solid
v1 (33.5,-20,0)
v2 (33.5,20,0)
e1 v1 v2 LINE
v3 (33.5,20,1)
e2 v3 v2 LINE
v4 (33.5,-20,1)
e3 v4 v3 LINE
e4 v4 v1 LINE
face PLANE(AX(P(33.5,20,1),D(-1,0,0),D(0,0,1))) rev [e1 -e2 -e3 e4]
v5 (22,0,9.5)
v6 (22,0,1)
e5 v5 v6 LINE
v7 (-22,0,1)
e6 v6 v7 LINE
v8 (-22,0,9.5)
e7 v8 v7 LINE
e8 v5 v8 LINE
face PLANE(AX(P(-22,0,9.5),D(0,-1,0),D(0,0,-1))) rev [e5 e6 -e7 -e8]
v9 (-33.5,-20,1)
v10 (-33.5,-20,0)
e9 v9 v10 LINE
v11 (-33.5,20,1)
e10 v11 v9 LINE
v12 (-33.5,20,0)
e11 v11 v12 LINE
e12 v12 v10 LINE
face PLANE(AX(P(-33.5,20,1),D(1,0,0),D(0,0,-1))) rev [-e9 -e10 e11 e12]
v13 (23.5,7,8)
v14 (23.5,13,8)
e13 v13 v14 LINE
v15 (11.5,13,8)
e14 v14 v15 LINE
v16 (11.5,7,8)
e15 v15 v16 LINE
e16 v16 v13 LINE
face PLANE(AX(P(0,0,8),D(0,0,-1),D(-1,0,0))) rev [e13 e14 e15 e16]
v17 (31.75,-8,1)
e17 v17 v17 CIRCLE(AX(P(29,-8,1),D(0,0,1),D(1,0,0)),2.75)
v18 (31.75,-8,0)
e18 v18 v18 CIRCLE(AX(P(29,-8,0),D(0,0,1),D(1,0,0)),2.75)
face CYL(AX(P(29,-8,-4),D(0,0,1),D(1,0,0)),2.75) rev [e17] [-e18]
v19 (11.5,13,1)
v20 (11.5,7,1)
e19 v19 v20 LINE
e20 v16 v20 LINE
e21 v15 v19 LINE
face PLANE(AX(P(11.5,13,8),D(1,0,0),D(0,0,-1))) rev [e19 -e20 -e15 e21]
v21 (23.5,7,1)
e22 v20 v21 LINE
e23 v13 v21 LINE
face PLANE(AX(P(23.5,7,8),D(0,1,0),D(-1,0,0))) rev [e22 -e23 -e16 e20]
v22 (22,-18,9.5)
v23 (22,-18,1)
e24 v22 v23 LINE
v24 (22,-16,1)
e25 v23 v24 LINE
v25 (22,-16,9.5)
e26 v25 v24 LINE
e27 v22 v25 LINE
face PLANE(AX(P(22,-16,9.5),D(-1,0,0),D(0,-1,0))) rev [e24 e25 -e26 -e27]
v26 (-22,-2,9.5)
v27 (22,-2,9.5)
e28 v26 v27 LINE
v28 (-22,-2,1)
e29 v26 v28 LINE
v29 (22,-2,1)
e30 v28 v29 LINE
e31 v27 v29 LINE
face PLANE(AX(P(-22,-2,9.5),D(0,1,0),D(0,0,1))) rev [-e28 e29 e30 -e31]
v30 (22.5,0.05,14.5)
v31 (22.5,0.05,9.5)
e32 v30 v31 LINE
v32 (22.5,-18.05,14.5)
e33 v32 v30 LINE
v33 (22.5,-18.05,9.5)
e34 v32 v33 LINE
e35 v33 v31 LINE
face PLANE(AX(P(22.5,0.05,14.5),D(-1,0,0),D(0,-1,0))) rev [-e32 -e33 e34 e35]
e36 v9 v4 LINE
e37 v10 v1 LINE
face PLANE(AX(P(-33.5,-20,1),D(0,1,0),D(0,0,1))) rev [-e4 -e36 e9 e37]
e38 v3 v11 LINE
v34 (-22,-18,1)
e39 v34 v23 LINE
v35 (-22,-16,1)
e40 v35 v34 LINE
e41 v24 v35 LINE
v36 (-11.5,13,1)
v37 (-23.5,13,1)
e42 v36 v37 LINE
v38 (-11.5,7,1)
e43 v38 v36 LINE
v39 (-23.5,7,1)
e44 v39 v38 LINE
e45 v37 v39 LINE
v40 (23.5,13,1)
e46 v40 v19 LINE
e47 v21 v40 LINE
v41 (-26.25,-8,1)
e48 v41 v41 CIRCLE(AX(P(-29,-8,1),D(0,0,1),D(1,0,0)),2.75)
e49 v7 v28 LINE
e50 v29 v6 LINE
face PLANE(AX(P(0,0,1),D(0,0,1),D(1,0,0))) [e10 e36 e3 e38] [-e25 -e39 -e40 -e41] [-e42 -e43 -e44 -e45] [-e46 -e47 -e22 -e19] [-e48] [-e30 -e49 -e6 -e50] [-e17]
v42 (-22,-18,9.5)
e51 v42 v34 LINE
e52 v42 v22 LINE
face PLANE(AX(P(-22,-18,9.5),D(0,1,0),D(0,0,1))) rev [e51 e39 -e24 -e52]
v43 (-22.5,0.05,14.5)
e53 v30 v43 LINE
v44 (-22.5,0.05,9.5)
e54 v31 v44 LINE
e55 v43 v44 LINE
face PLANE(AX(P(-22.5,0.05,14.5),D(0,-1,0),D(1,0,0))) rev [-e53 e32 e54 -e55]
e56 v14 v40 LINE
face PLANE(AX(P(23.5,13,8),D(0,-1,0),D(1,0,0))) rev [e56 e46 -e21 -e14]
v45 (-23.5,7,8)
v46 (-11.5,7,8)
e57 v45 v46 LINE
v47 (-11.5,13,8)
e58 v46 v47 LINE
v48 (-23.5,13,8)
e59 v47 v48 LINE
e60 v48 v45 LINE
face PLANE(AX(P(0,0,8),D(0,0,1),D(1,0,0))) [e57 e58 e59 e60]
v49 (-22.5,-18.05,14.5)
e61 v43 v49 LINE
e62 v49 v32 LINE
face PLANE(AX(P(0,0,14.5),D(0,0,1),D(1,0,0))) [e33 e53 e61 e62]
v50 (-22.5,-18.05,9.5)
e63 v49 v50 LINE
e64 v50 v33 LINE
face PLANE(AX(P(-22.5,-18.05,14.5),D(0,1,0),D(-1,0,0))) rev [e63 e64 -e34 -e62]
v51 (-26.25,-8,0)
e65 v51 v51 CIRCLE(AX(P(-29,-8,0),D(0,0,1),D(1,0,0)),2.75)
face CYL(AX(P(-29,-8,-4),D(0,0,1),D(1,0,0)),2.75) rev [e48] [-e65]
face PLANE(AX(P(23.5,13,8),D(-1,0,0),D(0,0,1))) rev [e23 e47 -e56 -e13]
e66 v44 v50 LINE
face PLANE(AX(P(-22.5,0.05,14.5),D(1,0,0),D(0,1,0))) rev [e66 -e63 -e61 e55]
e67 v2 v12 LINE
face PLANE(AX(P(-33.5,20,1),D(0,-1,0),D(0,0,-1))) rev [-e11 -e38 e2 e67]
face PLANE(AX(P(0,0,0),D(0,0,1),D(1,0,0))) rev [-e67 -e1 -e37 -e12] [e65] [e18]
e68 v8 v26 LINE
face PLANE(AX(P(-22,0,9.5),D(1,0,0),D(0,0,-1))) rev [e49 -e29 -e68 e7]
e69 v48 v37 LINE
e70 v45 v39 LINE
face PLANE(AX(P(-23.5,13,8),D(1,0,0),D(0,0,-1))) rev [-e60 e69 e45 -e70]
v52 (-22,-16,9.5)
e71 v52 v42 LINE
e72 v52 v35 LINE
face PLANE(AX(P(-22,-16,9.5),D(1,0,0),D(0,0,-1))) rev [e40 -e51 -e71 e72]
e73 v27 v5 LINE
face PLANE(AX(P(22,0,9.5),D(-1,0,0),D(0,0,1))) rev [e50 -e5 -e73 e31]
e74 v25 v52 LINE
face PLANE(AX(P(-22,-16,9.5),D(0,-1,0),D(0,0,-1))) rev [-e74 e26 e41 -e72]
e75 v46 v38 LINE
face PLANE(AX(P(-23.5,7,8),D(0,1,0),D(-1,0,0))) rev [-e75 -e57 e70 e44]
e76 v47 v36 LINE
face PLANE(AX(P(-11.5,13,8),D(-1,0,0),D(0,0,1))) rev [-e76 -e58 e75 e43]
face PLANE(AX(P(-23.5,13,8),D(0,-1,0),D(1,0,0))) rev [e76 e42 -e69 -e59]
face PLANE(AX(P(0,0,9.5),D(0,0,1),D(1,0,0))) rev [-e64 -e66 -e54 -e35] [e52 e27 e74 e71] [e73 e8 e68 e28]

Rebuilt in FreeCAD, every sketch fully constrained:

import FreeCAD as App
import Part
import Sketcher

V = App.Vector
Q = App.Units.Quantity


def add_polygon(sketch, points):
    """Adds a closed chain of lines whose ends are joined by coincident constraints."""
    first, n = sketch.GeometryCount, len(points)
    for a, b in zip(points, points[1:] + points[:1]):
        sketch.addGeometry(Part.LineSegment(App.Vector(*a, 0), App.Vector(*b, 0)), False)
    for i in range(n):
        sketch.addConstraint(Sketcher.Constraint("Coincident", first + i, 2, first + (i + 1) % n, 1))

doc = App.newDocument("Part")
body = doc.addObject("PartDesign::Body", "Body")

# Sketch on XY plane
sketch1 = body.newObject("Sketcher::SketchObject", "Sketch")
sketch1.AttachmentSupport = (doc.getObject("XY_Plane"), [""])
sketch1.MapMode = "FlatFace"
add_polygon(sketch1, [(-34, 20), (-34, -20), (34, -20), (34, 20)])  # lines 0-3
sketch1.addConstraint([
    Sketcher.Constraint("Vertical", 0),
    Sketcher.Constraint("Horizontal", 1),
    Sketcher.Constraint("Vertical", 2),
    Sketcher.Constraint("Horizontal", 3),
    Sketcher.Constraint("Symmetric", 0, 2, 2, 2, -1, 1),
    Sketcher.Constraint("DistanceX", 1, 1, 1, 2, Q("67 mm")),
    Sketcher.Constraint("DistanceY", 0, 2, 0, 1, Q("40 mm")),
])
pad1 = body.newObject("PartDesign::Pad", "Pad")
pad1.Profile = sketch1
pad1.Length = 1

# Sketch on XY plane
sketch2 = body.newObject("Sketcher::SketchObject", "Sketch001")
sketch2.AttachmentSupport = (doc.getObject("XY_Plane"), [""])
sketch2.MapMode = "FlatFace"
sketch2.AttachmentOffset = App.Placement(V(0, 0, 1), App.Rotation())
add_polygon(sketch2, [(-22, 0), (-22, -2), (22, -2), (22, 0)])  # lines 0-3
add_polygon(sketch2, [(-22, -16), (-22, -18), (22, -18), (22, -16)])  # lines 4-7
sketch2.addConstraint([
    Sketcher.Constraint("Vertical", 0),
    Sketcher.Constraint("Horizontal", 1),
    Sketcher.Constraint("Vertical", 2),
    Sketcher.Constraint("Horizontal", 3),
    Sketcher.Constraint("Vertical", 4),
    Sketcher.Constraint("Horizontal", 5),
    Sketcher.Constraint("Vertical", 6),
    Sketcher.Constraint("Horizontal", 7),
    Sketcher.Constraint("Symmetric", 2, 2, 3, 2, -1, 1),
    Sketcher.Constraint("Vertical", 3, 2, 4, 2),
    Sketcher.Constraint("Vertical", 2, 2, 5, 2),
    Sketcher.Constraint("Equal", 2, 4),
    Sketcher.Constraint("DistanceX", 1, 1, 1, 2, Q("44 mm")),
    Sketcher.Constraint("DistanceY", 0, 2, 0, 1, Q("2 mm")),
    Sketcher.Constraint("DistanceY", 4, 2, -1, 1, Q("18 mm")),
])
pad2 = body.newObject("PartDesign::Pad", "Pad001")
pad2.Profile = sketch2
pad2.Length = 8.5

# Sketch on XY plane
sketch3 = body.newObject("Sketcher::SketchObject", "Sketch002")
sketch3.AttachmentSupport = (doc.getObject("XY_Plane"), [""])
sketch3.MapMode = "FlatFace"
sketch3.AttachmentOffset = App.Placement(V(0, 0, 9.5), App.Rotation())
add_polygon(sketch3, [(-22, 0), (-22, -18), (22, -18), (22, 0)])  # lines 0-3
sketch3.addConstraint([
    Sketcher.Constraint("Vertical", 0),
    Sketcher.Constraint("Horizontal", 1),
    Sketcher.Constraint("Vertical", 2),
    Sketcher.Constraint("Horizontal", 3),
    Sketcher.Constraint("DistanceX", 1, 1, 1, 2, Q("45 mm")),
    Sketcher.Constraint("DistanceY", 0, 2, 0, 1, Q("18.1 mm")),
    Sketcher.Constraint("DistanceX", 0, 2, -1, 1, Q("22.5 mm")),
    Sketcher.Constraint("DistanceY", 0, 2, -1, 1, Q("18.05 mm")),
])
pad3 = body.newObject("PartDesign::Pad", "Pad002")
pad3.Profile = sketch3
pad3.Length = 5

# Sketch on XY plane
sketch4 = body.newObject("Sketcher::SketchObject", "Sketch003")
sketch4.AttachmentSupport = (doc.getObject("XY_Plane"), [""])
sketch4.MapMode = "FlatFace"
sketch4.AttachmentOffset = App.Placement(V(0, 0, 1), App.Rotation())
sketch4.addGeometry([
    Part.Circle(V(-29, -8, 0), V(0, 0, 1), 2.8),
    Part.Circle(V(29, -8, 0), V(0, 0, 1), 2.8),
], False)
sketch4.addConstraint([
    Sketcher.Constraint("Equal", 0, 1),
    Sketcher.Constraint("Symmetric", 0, 3, 1, 3, -2),
    Sketcher.Constraint("Diameter", 0, Q("5.5 mm")),
    Sketcher.Constraint("DistanceX", 0, 3, -1, 1, Q("29 mm")),
    Sketcher.Constraint("DistanceY", 0, 3, -1, 1, Q("8 mm")),
])
pocket1 = body.newObject("PartDesign::Pocket", "Pocket")
pocket1.Profile = sketch4
pocket1.Length = 5

# Sketch on XY plane
sketch5 = body.newObject("Sketcher::SketchObject", "Sketch004")
sketch5.AttachmentSupport = (doc.getObject("XY_Plane"), [""])
sketch5.MapMode = "FlatFace"
sketch5.AttachmentOffset = App.Placement(V(0, 0, 1), App.Rotation())
add_polygon(sketch5, [(-24, 13), (-24, 7), (-12, 7), (-12, 13)])  # lines 0-3
add_polygon(sketch5, [(12, 13), (12, 7), (24, 7), (24, 13)])  # lines 4-7
sketch5.addConstraint([
    Sketcher.Constraint("Vertical", 0),
    Sketcher.Constraint("Horizontal", 1),
    Sketcher.Constraint("Vertical", 2),
    Sketcher.Constraint("Horizontal", 3),
    Sketcher.Constraint("Vertical", 4),
    Sketcher.Constraint("Horizontal", 5),
    Sketcher.Constraint("Vertical", 6),
    Sketcher.Constraint("Horizontal", 7),
    Sketcher.Constraint("Symmetric", 1, 2, 4, 2, -2),
    Sketcher.Constraint("Symmetric", 3, 2, 6, 2, -2),
    Sketcher.Constraint("DistanceX", 1, 1, 1, 2, Q("12 mm")),
    Sketcher.Constraint("DistanceY", 0, 2, 0, 1, Q("6 mm")),
    Sketcher.Constraint("DistanceY", -1, 1, 0, 2, Q("7 mm")),
    Sketcher.Constraint("DistanceX", 1, 2, 4, 2, Q("23 mm")),
])
pad4 = body.newObject("PartDesign::Pad", "Pad003")
pad4.Profile = sketch5
pad4.Length = 7

doc.recompute()
